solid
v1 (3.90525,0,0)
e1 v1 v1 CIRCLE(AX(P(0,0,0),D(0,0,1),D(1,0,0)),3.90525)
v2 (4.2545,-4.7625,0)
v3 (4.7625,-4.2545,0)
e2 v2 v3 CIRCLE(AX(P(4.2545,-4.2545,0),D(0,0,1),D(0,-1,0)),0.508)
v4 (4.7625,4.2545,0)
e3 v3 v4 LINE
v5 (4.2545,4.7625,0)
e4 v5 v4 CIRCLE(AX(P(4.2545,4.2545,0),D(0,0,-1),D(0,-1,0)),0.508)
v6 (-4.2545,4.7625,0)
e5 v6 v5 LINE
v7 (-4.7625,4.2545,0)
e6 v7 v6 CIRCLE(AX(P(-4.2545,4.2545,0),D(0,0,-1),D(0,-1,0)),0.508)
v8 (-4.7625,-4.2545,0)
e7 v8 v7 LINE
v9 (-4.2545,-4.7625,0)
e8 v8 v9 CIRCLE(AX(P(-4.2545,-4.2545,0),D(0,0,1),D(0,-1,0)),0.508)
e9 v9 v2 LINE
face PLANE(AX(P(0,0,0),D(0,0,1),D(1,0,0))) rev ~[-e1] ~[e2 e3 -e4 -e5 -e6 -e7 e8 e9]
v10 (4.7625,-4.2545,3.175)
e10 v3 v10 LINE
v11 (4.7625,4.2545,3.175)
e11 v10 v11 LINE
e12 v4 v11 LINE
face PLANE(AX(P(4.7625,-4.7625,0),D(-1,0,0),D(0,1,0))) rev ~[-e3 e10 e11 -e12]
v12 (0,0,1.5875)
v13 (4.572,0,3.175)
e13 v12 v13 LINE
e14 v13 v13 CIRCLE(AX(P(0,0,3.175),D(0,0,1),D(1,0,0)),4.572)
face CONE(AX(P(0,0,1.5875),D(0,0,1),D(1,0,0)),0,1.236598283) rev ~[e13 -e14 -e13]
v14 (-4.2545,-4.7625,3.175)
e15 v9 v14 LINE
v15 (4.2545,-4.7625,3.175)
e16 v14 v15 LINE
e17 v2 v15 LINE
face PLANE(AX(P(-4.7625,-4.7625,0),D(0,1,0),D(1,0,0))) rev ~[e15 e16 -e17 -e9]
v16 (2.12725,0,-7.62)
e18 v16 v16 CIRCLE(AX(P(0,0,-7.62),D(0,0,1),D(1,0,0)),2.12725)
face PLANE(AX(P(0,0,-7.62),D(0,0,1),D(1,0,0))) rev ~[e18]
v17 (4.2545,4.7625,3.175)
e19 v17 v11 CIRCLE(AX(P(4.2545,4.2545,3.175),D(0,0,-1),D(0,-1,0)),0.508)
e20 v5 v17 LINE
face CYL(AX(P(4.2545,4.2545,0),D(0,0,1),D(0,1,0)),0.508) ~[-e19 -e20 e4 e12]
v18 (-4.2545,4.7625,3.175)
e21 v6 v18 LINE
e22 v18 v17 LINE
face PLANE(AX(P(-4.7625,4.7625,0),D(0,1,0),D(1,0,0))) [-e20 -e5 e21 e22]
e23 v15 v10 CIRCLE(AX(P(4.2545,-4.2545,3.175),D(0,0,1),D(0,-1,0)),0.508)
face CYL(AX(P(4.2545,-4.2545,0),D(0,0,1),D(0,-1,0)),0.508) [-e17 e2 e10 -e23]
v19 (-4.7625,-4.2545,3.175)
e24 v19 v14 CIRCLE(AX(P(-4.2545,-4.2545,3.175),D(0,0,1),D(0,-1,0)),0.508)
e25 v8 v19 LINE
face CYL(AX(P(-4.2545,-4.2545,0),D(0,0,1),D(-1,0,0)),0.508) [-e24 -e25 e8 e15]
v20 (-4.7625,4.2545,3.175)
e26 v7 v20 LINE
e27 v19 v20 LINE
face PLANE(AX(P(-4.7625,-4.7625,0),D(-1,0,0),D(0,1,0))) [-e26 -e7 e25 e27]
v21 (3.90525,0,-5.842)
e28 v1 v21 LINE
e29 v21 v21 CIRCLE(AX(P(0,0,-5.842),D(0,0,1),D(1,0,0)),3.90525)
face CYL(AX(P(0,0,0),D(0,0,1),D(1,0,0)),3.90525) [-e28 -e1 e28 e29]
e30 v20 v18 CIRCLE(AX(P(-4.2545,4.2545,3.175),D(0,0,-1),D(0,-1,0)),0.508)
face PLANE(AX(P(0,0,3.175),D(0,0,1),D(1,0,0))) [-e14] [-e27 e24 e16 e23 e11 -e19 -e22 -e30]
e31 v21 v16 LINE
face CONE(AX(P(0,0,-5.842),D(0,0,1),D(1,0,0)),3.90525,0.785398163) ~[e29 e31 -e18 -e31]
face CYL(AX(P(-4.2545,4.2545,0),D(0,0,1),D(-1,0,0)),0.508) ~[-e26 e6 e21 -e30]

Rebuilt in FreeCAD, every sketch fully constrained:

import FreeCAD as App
import Part
import Sketcher

V = App.Vector
Q = App.Units.Quantity


def edges_at(feature, points):
    """Names of the edges that pass closest to the given points."""
    edges = feature.Shape.Edges
    near = lambda p: min(range(len(edges)), key=lambda i: edges[i].distToShape(Part.Vertex(*p))[0])
    return sorted({f"Edge{near(p) + 1}" for p in points})


def add_polygon(sketch, points):
    """Adds a closed chain of lines whose ends are joined by coincident constraints."""
    first, n = sketch.GeometryCount, len(points)
    for a, b in zip(points, points[1:] + points[:1]):
        sketch.addGeometry(Part.LineSegment(App.Vector(*a, 0), App.Vector(*b, 0)), False)
    for i in range(n):
        sketch.addConstraint(Sketcher.Constraint("Coincident", first + i, 2, first + (i + 1) % n, 1))

doc = App.newDocument("Part")
params = doc.addObject("Spreadsheet::Sheet", "Params")
for row, (alias, value) in enumerate([
    ("pad1_length", "0.3 in"),
    ("sketch2_width", "0.375 in"),
    ("pad2_length", "0.125 in"),
    ("sketch3_width", "0.18 in"),
    ("sketch3_height", "0.0625 in"),
    ("groove_angle", "360 deg"),
    ("fillet_radius", "0.02 in"),
    ("chamfer_size", "0.07 in"),
], start=1):
    params.set(f"A{row}", alias)
    params.set(f"B{row}", "=" + value)
    params.setAlias(f"B{row}", alias)

body = doc.addObject("PartDesign::Body", "Body")

# Sketch on XY plane
sketch1 = doc.addObject("Sketcher::SketchObject", "Sketch")
body.addObject(sketch1)
sketch1.AttachmentSupport = (doc.XY_Plane, [""])
sketch1.MapMode = "FlatFace"
sketch1.addGeometry(Part.Circle(V(0, 0, 0), V(0, 0, 1), 3.9), False)
sketch1.addConstraint([
    Sketcher.Constraint("Coincident", 0, 3, -1, 1),
    Sketcher.Constraint("Diameter", 0, Q("0.3075 in")),
])
pad1 = doc.addObject("PartDesign::Pad", "Pad")
body.addObject(pad1)
pad1.Profile = sketch1
pad1.setExpression("Length", "Params.pad1_length")
pad1.Reversed = True

# Sketch on XY plane
sketch2 = doc.addObject("Sketcher::SketchObject", "Sketch001")
body.addObject(sketch2)
sketch2.AttachmentSupport = (doc.XY_Plane, [""])
sketch2.MapMode = "FlatFace"
add_polygon(sketch2, [(-5, 5), (-5, -5), (5, -5), (5, 5)])  # lines 0-3
sketch2.addConstraint([
    Sketcher.Constraint("Vertical", 0),
    Sketcher.Constraint("Horizontal", 1),
    Sketcher.Constraint("Vertical", 2),
    Sketcher.Constraint("Horizontal", 3),
    Sketcher.Constraint("Symmetric", 0, 2, 2, 2, -1, 1),
    Sketcher.Constraint("Equal", 3, 0),
    Sketcher.Constraint("DistanceX", 1, 1, 1, 2, Q("0.375 in")),
])
sketch2.setExpression("Constraints[10]", "Params.sketch2_width")
pad2 = doc.addObject("PartDesign::Pad", "Pad001")
body.addObject(pad2)
pad2.Profile = sketch2
pad2.setExpression("Length", "Params.pad2_length")

# Sketch on XZ plane
sketch3 = doc.addObject("Sketcher::SketchObject", "Sketch002")
body.addObject(sketch3)
sketch3.AttachmentSupport = (doc.XZ_Plane, [""])
sketch3.MapMode = "FlatFace"
add_polygon(sketch3, [(0, 1.6), (4.6, 3.2), (0, 3.2)])  # lines 0-2
sketch3.addConstraint([
    Sketcher.Constraint("Horizontal", 1),
    Sketcher.Constraint("Vertical", 2),
    Sketcher.Constraint("PointOnObject", 1, 2, -2),
    Sketcher.Constraint("DistanceX", 1, 2, 1, 1, Q("0.18 in")),
    Sketcher.Constraint("DistanceY", 2, 2, 2, 1, Q("0.0625 in")),
    Sketcher.Constraint("DistanceY", -1, 1, 0, 2, Q("0.125 in")),
])
sketch3.setExpression("Constraints[6]", "Params.sketch3_width")
sketch3.setExpression("Constraints[7]", "Params.sketch3_height")
groove = doc.addObject("PartDesign::Groove", "Groove")
body.addObject(groove)
groove.Profile = sketch3
groove.ReferenceAxis = (sketch3, ["V_Axis"])
groove.setExpression("Angle", "Params.groove_angle")
doc.recompute()

fillet = doc.addObject("PartDesign::Fillet", "Fillet")
body.addObject(fillet)
fillet.Base = (groove, edges_at(groove, [
    (-4.763, 4.763, 1.587),
    (4.763, 4.763, 1.587),
    (-4.763, -4.763, 1.587),
    (4.763, -4.763, 1.587),
]))
fillet.setExpression("Radius", "Params.fillet_radius")
doc.recompute()

chamfer = doc.addObject("PartDesign::Chamfer", "Chamfer")
body.addObject(chamfer)
chamfer.Base = (fillet, edges_at(fillet, [(-3.905, 0, -7.62)]))
chamfer.setExpression("Size", "Params.chamfer_size")

doc.recompute()
